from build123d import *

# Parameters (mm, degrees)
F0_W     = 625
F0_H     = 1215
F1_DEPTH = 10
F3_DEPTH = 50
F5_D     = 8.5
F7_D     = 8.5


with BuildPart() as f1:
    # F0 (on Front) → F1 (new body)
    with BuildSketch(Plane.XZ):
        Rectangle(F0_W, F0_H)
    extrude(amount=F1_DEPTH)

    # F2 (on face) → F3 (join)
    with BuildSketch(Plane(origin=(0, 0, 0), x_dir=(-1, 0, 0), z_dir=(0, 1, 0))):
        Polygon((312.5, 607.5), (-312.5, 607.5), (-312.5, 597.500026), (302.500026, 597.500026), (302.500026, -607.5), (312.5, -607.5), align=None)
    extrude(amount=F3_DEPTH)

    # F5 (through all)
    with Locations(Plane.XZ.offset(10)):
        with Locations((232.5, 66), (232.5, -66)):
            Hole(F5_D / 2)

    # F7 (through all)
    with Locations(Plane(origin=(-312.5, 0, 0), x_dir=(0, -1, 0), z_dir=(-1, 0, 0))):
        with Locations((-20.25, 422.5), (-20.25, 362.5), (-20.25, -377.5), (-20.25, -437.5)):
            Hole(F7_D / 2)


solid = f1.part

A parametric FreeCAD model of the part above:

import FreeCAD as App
import Part
import Sketcher
Q = App.Units.Quantity


def add_polygon(sketch, points):
    """Adds a closed chain of lines whose ends are joined by coincident constraints."""
    first, n = sketch.GeometryCount, len(points)
    for a, b in zip(points, points[1:] + points[:1]):
        sketch.addGeometry(Part.LineSegment(App.Vector(*a, 0), App.Vector(*b, 0)), False)
    for i in range(n):
        sketch.addConstraint(Sketcher.Constraint("Coincident", first + i, 2, first + (i + 1) % n, 1))

doc = App.newDocument("Part")
body = doc.addObject("PartDesign::Body", "Body")

# Sketch on XZ plane
sketch1 = body.newObject("Sketcher::SketchObject", "Sketch")
sketch1.AttachmentSupport = (doc.getObject("XZ_Plane"), [""])
sketch1.MapMode = "FlatFace"
add_polygon(sketch1, [(-312.5, 607.5), (-312.5, -607.5), (312.5, -607.5), (312.5, 607.5)])  # lines 0-3
sketch1.addConstraint([
    Sketcher.Constraint("Vertical", 0),
    Sketcher.Constraint("Horizontal", 1),
    Sketcher.Constraint("Vertical", 2),
    Sketcher.Constraint("Horizontal", 3),
    Sketcher.Constraint("Symmetric", 0, 2, 2, 2, -1, 1),
    Sketcher.Constraint("DistanceX", 1, 1, 1, 2, Q("625 mm")),
    Sketcher.Constraint("DistanceY", 0, 2, 0, 1, Q("1215 mm")),
])
pad1 = body.newObject("PartDesign::Pad", "Pad")
pad1.Profile = sketch1
pad1.Length = 10

# Sketch on XZ plane
sketch2 = body.newObject("Sketcher::SketchObject", "Sketch001")
sketch2.AttachmentSupport = (doc.getObject("XZ_Plane"), [""])
sketch2.MapMode = "FlatFace"
add_polygon(sketch2, [(-312.5, 607.5), (312.5, 607.5), (312.5, 597.500026), (-302.500026, 597.500026), (-302.500026, -607.5), (-312.5, -607.5)])  # lines 0-5
sketch2.addConstraint([
    Sketcher.Constraint("Horizontal", 0),
    Sketcher.Constraint("Vertical", 1),
    Sketcher.Constraint("Horizontal", 2),
    Sketcher.Constraint("Vertical", 3),
    Sketcher.Constraint("Horizontal", 4),
    Sketcher.Constraint("Vertical", 5),
    Sketcher.Constraint("Symmetric", 0, 2, 4, 2, -1, 1),
    Sketcher.Constraint("Equal", 4, 1),
    Sketcher.Constraint("DistanceX", 0, 1, 0, 2, Q("625 mm")),
    Sketcher.Constraint("DistanceY", 5, 1, 5, 2, Q("1215 mm")),
    Sketcher.Constraint("DistanceX", 2, 2, 2, 1, Q("615.000026 mm")),
])
pad2 = body.newObject("PartDesign::Pad", "Pad001")
pad2.Profile = sketch2
pad2.Length = 50
pad2.Reversed = True

# Sketch on XZ plane
sketch3 = body.newObject("Sketcher::SketchObject", "Sketch002")
sketch3.AttachmentSupport = (doc.getObject("XZ_Plane"), [""])
sketch3.MapMode = "FlatFace"
sketch3.AttachmentOffset = App.Placement(App.Vector(0, 0, 10), App.Rotation())
sketch3.addGeometry([
    Part.Circle(App.Vector(232.5, 66, 0), App.Vector(0, 0, 1), 4.25),
    Part.Circle(App.Vector(232.5, -66, 0), App.Vector(0, 0, 1), 4.25),
], False)
sketch3.addConstraint([
    Sketcher.Constraint("Equal", 0, 1),
    Sketcher.Constraint("Symmetric", 0, 3, 1, 3, -1),
    Sketcher.Constraint("Diameter", 0, Q("8.5 mm")),
    Sketcher.Constraint("DistanceY", -1, 1, 0, 3, Q("66 mm")),
    Sketcher.Constraint("DistanceX", -1, 1, 0, 3, Q("232.5 mm")),
])
doc.recompute()
hole = body.newObject("PartDesign::Hole", "Hole")
hole.Profile = sketch3
hole.ThreadType = "None"
hole.Diameter = 8.5
hole.DepthType = "ThroughAll"

# Sketch on YZ plane
sketch4 = body.newObject("Sketcher::SketchObject", "Sketch003")
sketch4.AttachmentSupport = (doc.getObject("YZ_Plane"), [""])
sketch4.MapMode = "FlatFace"
sketch4.AttachmentOffset = App.Placement(App.Vector(0, 0, -312.5), App.Rotation())
sketch4.addGeometry([
    Part.Circle(App.Vector(20.25, 422.5, 0), App.Vector(0, 0, 1), 4.25),
    Part.Circle(App.Vector(20.25, 362.5, 0), App.Vector(0, 0, 1), 4.25),
    Part.Circle(App.Vector(20.25, -377.5, 0), App.Vector(0, 0, 1), 4.25),
    Part.Circle(App.Vector(20.25, -437.5, 0), App.Vector(0, 0, 1), 4.25),
], False)
sketch4.addConstraint([
    Sketcher.Constraint("Equal", 0, 1),
    Sketcher.Constraint("Equal", 1, 2),
    Sketcher.Constraint("Equal", 2, 3),
    Sketcher.Constraint("Vertical", 0, 3, 1, 3),
    Sketcher.Constraint("Vertical", 1, 3, 2, 3),
    Sketcher.Constraint("Vertical", 2, 3, 3, 3),
    Sketcher.Constraint("Diameter", 0, Q("8.5 mm")),
    Sketcher.Constraint("DistanceY", 1, 3, 0, 3, Q("60 mm")),
    Sketcher.Constraint("DistanceY", 2, 3, 1, 3, Q("740 mm")),
    Sketcher.Constraint("DistanceY", 3, 3, 2, 3, Q("60 mm")),
    Sketcher.Constraint("DistanceY", -1, 1, 0, 3, Q("422.5 mm")),
    Sketcher.Constraint("DistanceX", -1, 1, 0, 3, Q("20.25 mm")),
])
doc.recompute()
hole2 = body.newObject("PartDesign::Hole", "Hole001")
hole2.Profile = sketch4
hole2.ThreadType = "None"
hole2.Diameter = 8.5
hole2.DepthType = "ThroughAll"
hole2.Reversed = True

doc.recompute()
